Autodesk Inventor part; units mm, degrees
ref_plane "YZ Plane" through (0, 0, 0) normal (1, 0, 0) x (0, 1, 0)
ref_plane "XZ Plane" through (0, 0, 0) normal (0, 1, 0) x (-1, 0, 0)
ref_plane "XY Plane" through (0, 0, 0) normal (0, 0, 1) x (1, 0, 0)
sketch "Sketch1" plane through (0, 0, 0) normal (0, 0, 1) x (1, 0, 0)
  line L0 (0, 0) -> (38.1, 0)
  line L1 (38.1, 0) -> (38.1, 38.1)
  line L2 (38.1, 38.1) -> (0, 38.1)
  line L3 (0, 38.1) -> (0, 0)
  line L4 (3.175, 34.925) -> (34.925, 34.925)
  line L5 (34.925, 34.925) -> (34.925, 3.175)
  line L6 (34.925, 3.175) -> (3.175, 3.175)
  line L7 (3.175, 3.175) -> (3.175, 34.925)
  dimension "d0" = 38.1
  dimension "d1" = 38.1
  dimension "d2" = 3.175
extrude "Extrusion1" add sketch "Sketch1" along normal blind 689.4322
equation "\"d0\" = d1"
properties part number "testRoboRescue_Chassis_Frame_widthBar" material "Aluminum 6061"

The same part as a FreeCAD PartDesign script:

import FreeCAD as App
import Part
import Sketcher

V = App.Vector
Q = App.Units.Quantity

doc = App.newDocument("Part")
body = doc.addObject("PartDesign::Body", "Body")

# Sketch on XY plane
sketch1 = body.newObject("Sketcher::SketchObject", "Sketch")
sketch1.AttachmentSupport = (doc.getObject("XY_Plane"), [""])
sketch1.MapMode = "FlatFace"
sketch1.addGeometry([
    Part.LineSegment(V(0, 38, 0), V(0, 0, 0)),  # 0
    Part.LineSegment(V(0, 0, 0), V(38, 0, 0)),  # 1
    Part.LineSegment(V(38, 0, 0), V(38, 38, 0)),  # 2
    Part.LineSegment(V(38, 38, 0), V(0, 38, 0)),  # 3
    Part.LineSegment(V(3, 3, 0), V(3, 35, 0)),  # 4
    Part.LineSegment(V(3, 35, 0), V(35, 35, 0)),  # 5
    Part.LineSegment(V(35, 35, 0), V(35, 3, 0)),  # 6
    Part.LineSegment(V(35, 3, 0), V(3, 3, 0)),  # 7
], False)
sketch1.addConstraint([
    Sketcher.Constraint("Coincident", 0, 2, 1, 1),
    Sketcher.Constraint("Coincident", 1, 2, 2, 1),
    Sketcher.Constraint("Coincident", 2, 2, 3, 1),
    Sketcher.Constraint("Coincident", 3, 2, 0, 1),
    Sketcher.Constraint("Coincident", 4, 2, 5, 1),
    Sketcher.Constraint("Coincident", 5, 2, 6, 1),
    Sketcher.Constraint("Coincident", 6, 2, 7, 1),
    Sketcher.Constraint("Coincident", 7, 2, 4, 1),
    Sketcher.Constraint("Vertical", 0),
    Sketcher.Constraint("Horizontal", 1),
    Sketcher.Constraint("Vertical", 2),
    Sketcher.Constraint("Horizontal", 3),
    Sketcher.Constraint("Vertical", 4),
    Sketcher.Constraint("Horizontal", 5),
    Sketcher.Constraint("Vertical", 6),
    Sketcher.Constraint("Horizontal", 7),
    Sketcher.Constraint("Coincident", 0, 2, -1, 1),
    Sketcher.Constraint("Equal", 3, 0),
    Sketcher.Constraint("Equal", 7, 4),
    Sketcher.Constraint("DistanceX", 1, 1, 1, 2, Q("1.5 in")),
    Sketcher.Constraint("DistanceX", -1, 1, 4, 2, Q("0.125 in")),
    Sketcher.Constraint("DistanceY", -1, 1, 6, 2, Q("0.125 in")),
    Sketcher.Constraint("DistanceY", 4, 2, 3, 2, Q("0.125 in")),
])
pad1 = body.newObject("PartDesign::Pad", "Pad")
pad1.Profile = sketch1
pad1.Length = Q("27.143 in")

doc.recompute()
